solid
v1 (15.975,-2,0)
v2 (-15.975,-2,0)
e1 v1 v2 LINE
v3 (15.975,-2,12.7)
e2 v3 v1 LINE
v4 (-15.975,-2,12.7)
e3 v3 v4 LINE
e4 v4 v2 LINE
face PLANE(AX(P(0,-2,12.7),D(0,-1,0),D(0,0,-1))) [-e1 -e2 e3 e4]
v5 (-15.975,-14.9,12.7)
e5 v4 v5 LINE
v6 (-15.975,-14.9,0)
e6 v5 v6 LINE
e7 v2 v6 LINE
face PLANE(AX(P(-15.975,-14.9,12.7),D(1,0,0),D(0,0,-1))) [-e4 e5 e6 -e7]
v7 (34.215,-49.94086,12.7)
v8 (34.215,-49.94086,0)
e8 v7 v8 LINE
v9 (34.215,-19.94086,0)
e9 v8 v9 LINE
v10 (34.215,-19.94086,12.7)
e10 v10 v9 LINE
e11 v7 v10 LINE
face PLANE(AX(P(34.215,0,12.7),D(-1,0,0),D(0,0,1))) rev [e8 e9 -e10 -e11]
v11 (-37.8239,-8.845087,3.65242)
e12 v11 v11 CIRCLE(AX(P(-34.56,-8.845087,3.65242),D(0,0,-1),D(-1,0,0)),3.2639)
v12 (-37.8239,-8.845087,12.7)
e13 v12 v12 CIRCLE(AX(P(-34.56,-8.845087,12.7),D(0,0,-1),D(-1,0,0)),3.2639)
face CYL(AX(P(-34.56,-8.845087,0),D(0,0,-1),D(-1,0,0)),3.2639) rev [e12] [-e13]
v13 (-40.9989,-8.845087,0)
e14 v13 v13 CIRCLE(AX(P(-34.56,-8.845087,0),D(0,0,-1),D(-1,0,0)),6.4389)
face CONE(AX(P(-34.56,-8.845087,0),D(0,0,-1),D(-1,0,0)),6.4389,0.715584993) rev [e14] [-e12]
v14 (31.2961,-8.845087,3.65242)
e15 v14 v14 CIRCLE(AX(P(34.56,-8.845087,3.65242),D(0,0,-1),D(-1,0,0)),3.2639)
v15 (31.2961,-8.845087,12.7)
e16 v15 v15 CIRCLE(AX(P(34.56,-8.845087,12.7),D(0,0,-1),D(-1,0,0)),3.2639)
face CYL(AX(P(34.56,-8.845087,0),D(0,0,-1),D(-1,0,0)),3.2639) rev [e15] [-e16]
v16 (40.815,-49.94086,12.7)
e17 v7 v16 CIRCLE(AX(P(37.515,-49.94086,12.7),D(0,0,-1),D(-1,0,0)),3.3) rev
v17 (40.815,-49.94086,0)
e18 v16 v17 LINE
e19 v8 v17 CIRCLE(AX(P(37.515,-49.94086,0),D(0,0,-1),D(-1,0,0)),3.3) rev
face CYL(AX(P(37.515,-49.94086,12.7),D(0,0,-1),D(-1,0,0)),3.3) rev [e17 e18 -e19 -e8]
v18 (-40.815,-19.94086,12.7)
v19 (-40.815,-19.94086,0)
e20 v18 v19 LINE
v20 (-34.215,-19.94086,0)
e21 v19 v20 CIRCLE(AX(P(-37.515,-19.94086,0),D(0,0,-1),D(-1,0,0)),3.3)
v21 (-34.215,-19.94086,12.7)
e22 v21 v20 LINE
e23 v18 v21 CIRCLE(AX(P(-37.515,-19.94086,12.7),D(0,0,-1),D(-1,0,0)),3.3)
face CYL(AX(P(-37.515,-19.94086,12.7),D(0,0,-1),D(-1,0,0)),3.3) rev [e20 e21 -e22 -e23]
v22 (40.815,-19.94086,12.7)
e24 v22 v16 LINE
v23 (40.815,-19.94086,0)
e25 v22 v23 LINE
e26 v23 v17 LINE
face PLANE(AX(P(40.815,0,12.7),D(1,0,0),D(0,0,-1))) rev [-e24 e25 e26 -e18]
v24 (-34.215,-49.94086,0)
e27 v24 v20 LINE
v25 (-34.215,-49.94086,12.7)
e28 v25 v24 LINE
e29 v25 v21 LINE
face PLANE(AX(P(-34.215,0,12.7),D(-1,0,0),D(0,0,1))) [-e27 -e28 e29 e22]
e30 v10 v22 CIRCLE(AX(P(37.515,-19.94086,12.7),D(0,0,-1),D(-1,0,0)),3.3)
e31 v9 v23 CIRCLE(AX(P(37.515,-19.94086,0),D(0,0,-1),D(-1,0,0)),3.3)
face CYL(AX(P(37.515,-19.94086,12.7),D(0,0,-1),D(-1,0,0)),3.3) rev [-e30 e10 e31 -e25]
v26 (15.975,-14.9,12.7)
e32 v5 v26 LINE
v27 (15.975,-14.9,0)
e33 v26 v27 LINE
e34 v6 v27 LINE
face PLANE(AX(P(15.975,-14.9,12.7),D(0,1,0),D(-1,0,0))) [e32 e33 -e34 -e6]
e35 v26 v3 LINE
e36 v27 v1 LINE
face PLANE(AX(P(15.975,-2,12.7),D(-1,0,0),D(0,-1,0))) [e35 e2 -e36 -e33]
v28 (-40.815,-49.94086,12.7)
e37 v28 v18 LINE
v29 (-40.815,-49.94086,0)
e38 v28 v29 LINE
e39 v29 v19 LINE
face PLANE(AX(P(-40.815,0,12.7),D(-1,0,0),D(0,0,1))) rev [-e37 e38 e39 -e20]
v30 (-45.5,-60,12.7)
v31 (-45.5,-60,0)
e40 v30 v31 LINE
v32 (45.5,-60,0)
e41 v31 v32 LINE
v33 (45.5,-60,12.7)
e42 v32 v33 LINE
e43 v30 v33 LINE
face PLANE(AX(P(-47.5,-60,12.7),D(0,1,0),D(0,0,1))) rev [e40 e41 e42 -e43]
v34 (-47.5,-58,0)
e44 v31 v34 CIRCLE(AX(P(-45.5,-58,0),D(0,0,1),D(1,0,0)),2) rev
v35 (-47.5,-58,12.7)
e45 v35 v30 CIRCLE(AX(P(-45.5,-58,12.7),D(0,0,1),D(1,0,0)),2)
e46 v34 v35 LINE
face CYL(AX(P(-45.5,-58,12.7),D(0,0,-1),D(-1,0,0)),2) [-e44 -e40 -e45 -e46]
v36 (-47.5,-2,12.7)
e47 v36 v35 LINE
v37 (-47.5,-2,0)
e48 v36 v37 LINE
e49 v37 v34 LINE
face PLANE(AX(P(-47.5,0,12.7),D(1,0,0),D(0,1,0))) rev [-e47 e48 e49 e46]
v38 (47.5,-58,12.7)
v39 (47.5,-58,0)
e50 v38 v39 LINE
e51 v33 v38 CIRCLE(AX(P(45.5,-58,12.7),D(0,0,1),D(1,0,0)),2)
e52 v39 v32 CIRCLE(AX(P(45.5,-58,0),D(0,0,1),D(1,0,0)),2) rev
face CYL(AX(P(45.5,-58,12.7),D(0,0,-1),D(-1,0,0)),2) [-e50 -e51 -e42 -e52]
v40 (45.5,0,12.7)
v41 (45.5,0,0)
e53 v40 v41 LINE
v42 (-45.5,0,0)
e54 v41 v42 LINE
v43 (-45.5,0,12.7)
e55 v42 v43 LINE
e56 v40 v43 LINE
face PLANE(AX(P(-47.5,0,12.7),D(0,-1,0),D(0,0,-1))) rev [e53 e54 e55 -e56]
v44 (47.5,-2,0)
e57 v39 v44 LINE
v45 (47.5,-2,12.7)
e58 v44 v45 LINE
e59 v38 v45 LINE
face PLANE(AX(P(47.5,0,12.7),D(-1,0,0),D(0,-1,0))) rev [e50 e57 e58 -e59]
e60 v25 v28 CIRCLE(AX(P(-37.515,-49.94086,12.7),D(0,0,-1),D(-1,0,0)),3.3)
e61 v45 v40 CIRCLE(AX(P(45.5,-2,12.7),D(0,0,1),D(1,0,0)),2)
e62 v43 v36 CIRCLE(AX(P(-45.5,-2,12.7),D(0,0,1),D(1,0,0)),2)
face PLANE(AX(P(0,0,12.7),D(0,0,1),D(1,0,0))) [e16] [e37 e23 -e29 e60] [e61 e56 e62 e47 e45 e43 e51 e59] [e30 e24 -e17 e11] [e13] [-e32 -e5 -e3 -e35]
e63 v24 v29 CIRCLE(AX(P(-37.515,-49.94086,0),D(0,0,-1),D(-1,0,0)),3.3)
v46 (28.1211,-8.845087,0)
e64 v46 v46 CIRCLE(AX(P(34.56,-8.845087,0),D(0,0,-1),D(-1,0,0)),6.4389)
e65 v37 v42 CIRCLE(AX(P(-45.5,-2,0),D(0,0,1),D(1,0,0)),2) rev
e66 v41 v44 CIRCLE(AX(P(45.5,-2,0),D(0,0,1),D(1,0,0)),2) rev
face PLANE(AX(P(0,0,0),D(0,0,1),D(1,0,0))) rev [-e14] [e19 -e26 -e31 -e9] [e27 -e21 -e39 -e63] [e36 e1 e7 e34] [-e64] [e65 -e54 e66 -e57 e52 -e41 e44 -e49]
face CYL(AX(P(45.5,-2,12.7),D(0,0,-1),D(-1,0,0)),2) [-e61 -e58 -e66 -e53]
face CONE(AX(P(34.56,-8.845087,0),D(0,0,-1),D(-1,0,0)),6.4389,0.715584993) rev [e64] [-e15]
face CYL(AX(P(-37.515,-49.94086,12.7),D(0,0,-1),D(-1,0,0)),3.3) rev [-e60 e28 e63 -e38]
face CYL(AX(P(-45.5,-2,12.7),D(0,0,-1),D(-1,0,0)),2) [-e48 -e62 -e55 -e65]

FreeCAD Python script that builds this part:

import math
import FreeCAD as App
import Part
import Sketcher

V = App.Vector


def edges_at(feature, points):
    """Names of the edges that pass closest to the given points."""
    edges = feature.Shape.Edges
    near = lambda p: min(range(len(edges)), key=lambda i: edges[i].distToShape(Part.Vertex(*p))[0])
    return sorted({f"Edge{near(p) + 1}" for p in points})

doc = App.newDocument("Part")
body = doc.addObject("PartDesign::Body", "Body")

# Sketch on XY plane
sketch1 = body.newObject("Sketcher::SketchObject", "Sketch")
sketch1.AttachmentSupport = (doc.getObject("XY_Plane"), [""])
sketch1.MapMode = "FlatFace"
sketch1.addGeometry([
    Part.LineSegment(V(-48, 0, 0), V(-48, -60, 0)),  # 0
    Part.LineSegment(V(-48, -60, 0), V(48, -60, 0)),  # 1
    Part.LineSegment(V(48, -60, 0), V(48, 0, 0)),  # 2
    Part.LineSegment(V(48, 0, 0), V(-48, 0, 0)),  # 3
    Part.LineSegment(V(-16, -2, 0), V(16, -2, 0)),  # 4
    Part.LineSegment(V(16, -2, 0), V(16, -15, 0)),  # 5
    Part.LineSegment(V(16, -15, 0), V(-16, -15, 0)),  # 6
    Part.LineSegment(V(-16, -15, 0), V(-16, -2, 0)),  # 7
], False)
sketch1.addConstraint([
    Sketcher.Constraint("Coincident", 0, 2, 1, 1),
    Sketcher.Constraint("Coincident", 1, 2, 2, 1),
    Sketcher.Constraint("Coincident", 2, 2, 3, 1),
    Sketcher.Constraint("Coincident", 3, 2, 0, 1),
    Sketcher.Constraint("Coincident", 4, 2, 5, 1),
    Sketcher.Constraint("Coincident", 5, 2, 6, 1),
    Sketcher.Constraint("Coincident", 6, 2, 7, 1),
    Sketcher.Constraint("Coincident", 7, 2, 4, 1),
    Sketcher.Constraint("Vertical", 0),
    Sketcher.Constraint("Horizontal", 1),
    Sketcher.Constraint("Vertical", 2),
    Sketcher.Constraint("Horizontal", 3),
    Sketcher.Constraint("Horizontal", 4),
    Sketcher.Constraint("Vertical", 5),
    Sketcher.Constraint("Horizontal", 6),
    Sketcher.Constraint("Vertical", 7),
    Sketcher.Constraint("Symmetric", 2, 2, 3, 2, -1, 1),
    Sketcher.Constraint("DistanceX", 1, 1, 1, 2, 95.0),
    Sketcher.Constraint("DistanceY", 0, 2, 0, 1, 60.0),
    Sketcher.Constraint("DistanceY", 5, 2, 5, 1, 12.9),
    Sketcher.Constraint("DistanceY", 4, 2, -1, 1, 2.0),
    Sketcher.Constraint("DistanceX", 4, 1, 4, 2, 31.95),
    Sketcher.Constraint("DistanceX", -1, 1, 4, 2, 15.975),
])
pad1 = body.newObject("PartDesign::Pad", "Pad")
pad1.Profile = sketch1
pad1.Length = 12.7

# Sketch on XY plane
sketch2 = body.newObject("Sketcher::SketchObject", "Sketch001")
sketch2.AttachmentSupport = (doc.getObject("XY_Plane"), [""])
sketch2.MapMode = "FlatFace"
sketch2.addGeometry([
    Part.Circle(V(34.6, -8.8, 0), V(0, 0, 1), 3.3),
    Part.Circle(V(-34.6, -8.8, 0), V(0, 0, 1), 3.3),
], False)
sketch2.addConstraint([
    Sketcher.Constraint("Equal", 0, 1),
    Sketcher.Constraint("Symmetric", 0, 3, 1, 3, -2),
    Sketcher.Constraint("Diameter", 0, 6.5278),
    Sketcher.Constraint("DistanceX", -1, 1, 0, 3, 34.56),
    Sketcher.Constraint("DistanceY", 0, 3, -1, 1, 8.845087),
])
doc.recompute()
hole = body.newObject("PartDesign::Hole", "Hole")
hole.Profile = sketch2
hole.ThreadType = "None"
hole.Diameter = 6.5278
hole.DepthType = "ThroughAll"
hole.HoleCutType = "Countersink"
hole.HoleCutDiameter = 12.8778
hole.HoleCutCountersinkAngle = 82
hole.Reversed = True
doc.recompute()

fillet = body.newObject("PartDesign::Fillet", "Fillet")
fillet.Base = (hole, edges_at(hole, [(-47.5, 0, 6.35), (-47.5, -60, 6.35)]))
fillet.Radius = 2
doc.recompute()

fillet2 = body.newObject("PartDesign::Fillet", "Fillet001")
fillet2.Base = (fillet, edges_at(fillet, [(47.5, 0, 6.35), (47.5, -60, 6.35)]))
fillet2.Radius = 2

# Sketch on XY plane
sketch3 = body.newObject("Sketcher::SketchObject", "Sketch002")
sketch3.AttachmentSupport = (doc.getObject("XY_Plane"), [""])
sketch3.MapMode = "FlatFace"
sketch3.addGeometry([
    Part.LineSegment(V(34.2, -49.9, 0), V(34.2, -19.9, 0)),  # 0
    Part.ArcOfCircle(Part.Circle(V(37.5, -19.9, 0), V(0, 0, 1), 3.3), math.radians(0), math.radians(180)),  # 1
    Part.LineSegment(V(40.8, -19.9, 0), V(40.8, -49.9, 0)),  # 2
    Part.ArcOfCircle(Part.Circle(V(37.5, -49.9, 0), V(0, 0, 1), 3.3), math.radians(180), math.radians(360)),  # 3
    Part.LineSegment(V(-40.8, -49.9, 0), V(-40.8, -19.9, 0)),  # 4
    Part.ArcOfCircle(Part.Circle(V(-37.5, -19.9, 0), V(0, 0, 1), 3.3), math.radians(0), math.radians(180)),  # 5
    Part.LineSegment(V(-34.2, -19.9, 0), V(-34.2, -49.9, 0)),  # 6
    Part.ArcOfCircle(Part.Circle(V(-37.5, -49.9, 0), V(0, 0, 1), 3.3), math.radians(180), math.radians(360)),  # 7
], False)
sketch3.addConstraint([
    Sketcher.Constraint("Tangent", 0, 2, 1, 2),
    Sketcher.Constraint("Tangent", 1, 1, 2, 1),
    Sketcher.Constraint("Tangent", 2, 2, 3, 2),
    Sketcher.Constraint("Tangent", 3, 1, 0, 1),
    Sketcher.Constraint("Tangent", 4, 2, 5, 2),
    Sketcher.Constraint("Tangent", 5, 1, 6, 1),
    Sketcher.Constraint("Tangent", 6, 2, 7, 2),
    Sketcher.Constraint("Tangent", 7, 1, 4, 1),
    Sketcher.Constraint("Vertical", 0),
    Sketcher.Constraint("Vertical", 2),
    Sketcher.Constraint("Vertical", 4),
    Sketcher.Constraint("Vertical", 6),
    Sketcher.Constraint("Equal", 3, 5),
    Sketcher.Constraint("Symmetric", 1, 3, 5, 3, -2),
    Sketcher.Constraint("Horizontal", 3, 3, 7, 3),
    Sketcher.Constraint("Radius", 1, 3.3),
    Sketcher.Constraint("DistanceY", 0, 1, 0, 2, 30.0),
    Sketcher.Constraint("DistanceX", 5, 3, 1, 3, 75.03),
    Sketcher.Constraint("DistanceY", 1, 3, -1, 1, 19.94086),
])
pocket1 = body.newObject("PartDesign::Pocket", "Pocket")
pocket1.Profile = sketch3
pocket1.Type = "ThroughAll"
pocket1.Reversed = True

doc.recompute()
